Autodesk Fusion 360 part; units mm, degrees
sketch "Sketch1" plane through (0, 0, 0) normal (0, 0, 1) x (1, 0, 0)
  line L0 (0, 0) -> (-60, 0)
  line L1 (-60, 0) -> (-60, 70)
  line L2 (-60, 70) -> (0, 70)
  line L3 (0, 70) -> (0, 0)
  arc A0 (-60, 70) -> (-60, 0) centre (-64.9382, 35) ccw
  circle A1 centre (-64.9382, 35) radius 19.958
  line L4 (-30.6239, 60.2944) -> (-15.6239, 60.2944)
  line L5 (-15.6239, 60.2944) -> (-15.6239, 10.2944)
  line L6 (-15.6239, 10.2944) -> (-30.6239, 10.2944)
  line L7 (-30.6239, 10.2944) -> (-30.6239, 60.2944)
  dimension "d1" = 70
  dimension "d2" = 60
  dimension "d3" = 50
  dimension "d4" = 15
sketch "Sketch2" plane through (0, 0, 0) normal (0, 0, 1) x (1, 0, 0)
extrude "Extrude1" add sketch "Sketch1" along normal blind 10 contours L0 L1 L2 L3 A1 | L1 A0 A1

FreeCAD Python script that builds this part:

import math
import FreeCAD as App
import Part
import Sketcher


def add_polygon(sketch, points):
    """Adds a closed chain of lines whose ends are joined by coincident constraints."""
    first, n = sketch.GeometryCount, len(points)
    for a, b in zip(points, points[1:] + points[:1]):
        sketch.addGeometry(Part.LineSegment(App.Vector(*a, 0), App.Vector(*b, 0)), False)
    for i in range(n):
        sketch.addConstraint(Sketcher.Constraint("Coincident", first + i, 2, first + (i + 1) % n, 1))

doc = App.newDocument("Part")
params = doc.addObject("Spreadsheet::Sheet", "Params")
for row, (alias, value) in enumerate([
    ("sketch1_width", "60 mm"),
    ("sketch1_width2", "15 mm"),
    ("sketch1_height", "70 mm"),
    ("sketch1_height2", "50 mm"),
    ("pad1_length", "10 mm"),
], start=1):
    params.set(f"A{row}", alias)
    params.set(f"B{row}", "=" + value)
    params.setAlias(f"B{row}", alias)

body = doc.addObject("PartDesign::Body", "Body")

# Sketch on XY plane
sketch1 = doc.addObject("Sketcher::SketchObject", "Sketch")
body.addObject(sketch1)
sketch1.AttachmentSupport = (doc.XY_Plane, [""])
sketch1.MapMode = "FlatFace"
sketch1.addGeometry(Part.LineSegment(App.Vector(-60, 0, 0), App.Vector(0, 0, 0)), False)  # 0
sketch1.addGeometry(Part.LineSegment(App.Vector(0, 0, 0), App.Vector(0, 70, 0)), False)  # 1
sketch1.addGeometry(Part.LineSegment(App.Vector(0, 70, 0), App.Vector(-60, 70, 0)), False)  # 2
sketch1.addGeometry(Part.ArcOfCircle(Part.Circle(App.Vector(-64.9382, 35, 0), App.Vector(0, 0, 1), 35.346652), math.radians(81.969067), math.radians(278.030933)), False)  # 3
sketch1.addGeometry(Part.Circle(App.Vector(-64.9382, 35, 0), App.Vector(0, 0, 1), 19.958), False)  # 4
add_polygon(sketch1, [(-30.6239, 10.2944), (-30.6239, 60.2944), (-15.6239, 60.2944), (-15.6239, 10.2944)])  # lines 5-8
sketch1.addConstraint([
    Sketcher.Constraint("Coincident", 0, 2, 1, 1),
    Sketcher.Constraint("Coincident", 1, 2, 2, 1),
    Sketcher.Constraint("Coincident", 2, 2, 3, 1),
    Sketcher.Constraint("Coincident", 3, 2, 0, 1),
    Sketcher.Constraint("Horizontal", 0),
    Sketcher.Constraint("Vertical", 1),
    Sketcher.Constraint("Horizontal", 2),
    Sketcher.Constraint("Vertical", 5),
    Sketcher.Constraint("Horizontal", 6),
    Sketcher.Constraint("Vertical", 7),
    Sketcher.Constraint("Horizontal", 8),
    Sketcher.Constraint("Coincident", 0, 2, -1, 1),
    Sketcher.Constraint("Coincident", 4, 3, 3, 3),
    Sketcher.Constraint("Vertical", 2, 2, 3, 2),
    Sketcher.Constraint("DistanceX", 0, 1, 0, 2, 60.0),
    Sketcher.Constraint("DistanceX", 6, 1, 6, 2, 15.0),
    Sketcher.Constraint("DistanceY", 1, 1, 1, 2, 70.0),
    Sketcher.Constraint("DistanceY", 5, 1, 5, 2, 50.0),
    Sketcher.Constraint("Diameter", 4, 39.916),
    Sketcher.Constraint("Radius", 3, 35.3467),
    Sketcher.Constraint("DistanceX", 5, 2, -1, 1, 30.624),
    Sketcher.Constraint("DistanceY", -1, 1, 5, 2, 60.2944),
])
sketch1.setExpression("Constraints[18]", "Params.sketch1_width")
sketch1.setExpression("Constraints[19]", "Params.sketch1_width2")
sketch1.setExpression("Constraints[20]", "Params.sketch1_height")
sketch1.setExpression("Constraints[21]", "Params.sketch1_height2")
pad1 = doc.addObject("PartDesign::Pad", "Pad")
body.addObject(pad1)
pad1.Profile = sketch1
pad1.setExpression("Length", "Params.pad1_length")

doc.recompute()
